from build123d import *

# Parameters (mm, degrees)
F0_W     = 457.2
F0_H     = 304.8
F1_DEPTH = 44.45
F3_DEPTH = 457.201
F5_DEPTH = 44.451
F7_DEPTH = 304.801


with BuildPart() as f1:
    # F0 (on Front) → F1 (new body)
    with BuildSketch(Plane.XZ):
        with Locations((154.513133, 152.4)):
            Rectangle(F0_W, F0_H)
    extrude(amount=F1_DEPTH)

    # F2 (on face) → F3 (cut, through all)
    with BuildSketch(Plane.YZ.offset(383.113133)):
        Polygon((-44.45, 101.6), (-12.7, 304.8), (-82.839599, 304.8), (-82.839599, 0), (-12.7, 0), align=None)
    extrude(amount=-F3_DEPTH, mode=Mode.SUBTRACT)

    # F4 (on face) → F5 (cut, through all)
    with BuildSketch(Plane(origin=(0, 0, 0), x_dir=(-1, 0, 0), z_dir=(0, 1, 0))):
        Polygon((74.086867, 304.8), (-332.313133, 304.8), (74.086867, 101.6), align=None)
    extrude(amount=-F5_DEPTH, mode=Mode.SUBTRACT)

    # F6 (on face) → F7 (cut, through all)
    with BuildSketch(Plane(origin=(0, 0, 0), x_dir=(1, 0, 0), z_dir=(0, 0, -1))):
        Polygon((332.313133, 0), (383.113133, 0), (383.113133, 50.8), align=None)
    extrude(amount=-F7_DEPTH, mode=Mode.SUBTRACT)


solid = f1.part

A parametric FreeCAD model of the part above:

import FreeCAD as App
import Part
import Sketcher
Q = App.Units.Quantity


def add_polygon(sketch, points):
    """Adds a closed chain of lines whose ends are joined by coincident constraints."""
    first, n = sketch.GeometryCount, len(points)
    for a, b in zip(points, points[1:] + points[:1]):
        sketch.addGeometry(Part.LineSegment(App.Vector(*a, 0), App.Vector(*b, 0)), False)
    for i in range(n):
        sketch.addConstraint(Sketcher.Constraint("Coincident", first + i, 2, first + (i + 1) % n, 1))

doc = App.newDocument("Part")
params = doc.addObject("Spreadsheet::Sheet", "Params")
for row, (alias, value) in enumerate([
    ("sketch1_width", "18 in"),
    ("sketch1_height", "12 in"),
    ("pad1_length", "1.75 in"),
    ("sketch2_height", "12 in"),
    ("sketch3_width", "16 in"),
    ("sketch3_height", "8 in"),
    ("sketch4_width", "2 in"),
], start=1):
    params.set(f"A{row}", alias)
    params.set(f"B{row}", "=" + value)
    params.setAlias(f"B{row}", alias)

body = doc.addObject("PartDesign::Body", "Body")

sketch1 = doc.addObject("Sketcher::SketchObject", "Sketch")
body.addObject(sketch1)
sketch1.AttachmentSupport = (doc.XZ_Plane, [""])
sketch1.MapMode = "FlatFace"
add_polygon(sketch1, [(-74, 305), (-74, 0), (383, 0), (383, 305)])
sketch1.addConstraint([
    Sketcher.Constraint("Vertical", 0),
    Sketcher.Constraint("Horizontal", 1),
    Sketcher.Constraint("Vertical", 2),
    Sketcher.Constraint("Horizontal", 3),
    Sketcher.Constraint("PointOnObject", 0, 2, -1),
    Sketcher.Constraint("DistanceX", 1, 1, 1, 2, Q("18 in")),
    Sketcher.Constraint("DistanceY", 0, 2, 0, 1, Q("12 in")),
    Sketcher.Constraint("DistanceX", 0, 2, -1, 1, Q("74.086867 mm")),
])
sketch1.setExpression("Constraints[9]", "Params.sketch1_width")
sketch1.setExpression("Constraints[10]", "Params.sketch1_height")
pad1 = doc.addObject("PartDesign::Pad", "Pad")
body.addObject(pad1)
pad1.Profile = sketch1
pad1.setExpression("Length", "Params.pad1_length")

sketch2 = doc.addObject("Sketcher::SketchObject", "Sketch001")
body.addObject(sketch2)
sketch2.AttachmentSupport = (doc.YZ_Plane, [""])
sketch2.MapMode = "FlatFace"
sketch2.AttachmentOffset = App.Placement(App.Vector(0, 0, 383.113133), App.Rotation())
add_polygon(sketch2, [(-44, 102), (-13, 305), (-83, 305), (-83, 0), (-13, 0)])
sketch2.addConstraint([
    Sketcher.Constraint("Horizontal", 1),
    Sketcher.Constraint("Vertical", 2),
    Sketcher.Constraint("Horizontal", 3),
    Sketcher.Constraint("PointOnObject", 2, 2, -1),
    Sketcher.Constraint("Vertical", 0, 2, 3, 2),
    Sketcher.Constraint("DistanceY", 2, 2, 2, 1, Q("12 in")),
    Sketcher.Constraint("DistanceY", -1, 1, 4, 2, Q("4 in")),
    Sketcher.Constraint("DistanceX", 0, 2, -1, 1, Q("0.5 in")),
    Sketcher.Constraint("DistanceX", 4, 2, -1, 1, Q("1.75 in")),
    Sketcher.Constraint("DistanceX", 1, 2, 1, 1, Q("70.139599 mm")),
])
sketch2.setExpression("Constraints[10]", "Params.sketch2_height")
pocket1 = doc.addObject("PartDesign::Pocket", "Pocket")
body.addObject(pocket1)
pocket1.Profile = sketch2
pocket1.Type = "ThroughAll"

sketch3 = doc.addObject("Sketcher::SketchObject", "Sketch002")
body.addObject(sketch3)
sketch3.AttachmentSupport = (doc.XZ_Plane, [""])
sketch3.MapMode = "FlatFace"
add_polygon(sketch3, [(-74, 305), (332, 305), (-74, 102)])
sketch3.addConstraint([
    Sketcher.Constraint("Horizontal", 0),
    Sketcher.Constraint("Vertical", 2),
    Sketcher.Constraint("DistanceX", 0, 1, 0, 2, Q("16 in")),
    Sketcher.Constraint("DistanceY", 2, 1, 2, 2, Q("8 in")),
    Sketcher.Constraint("DistanceY", -1, 1, 0, 2, Q("12 in")),
    Sketcher.Constraint("DistanceX", -1, 1, 0, 2, Q("332.313133 mm")),
])
sketch3.setExpression("Constraints[5]", "Params.sketch3_width")
sketch3.setExpression("Constraints[6]", "Params.sketch3_height")
pocket2 = doc.addObject("PartDesign::Pocket", "Pocket001")
body.addObject(pocket2)
pocket2.Profile = sketch3
pocket2.Type = "ThroughAll"
pocket2.Reversed = True

sketch4 = doc.addObject("Sketcher::SketchObject", "Sketch003")
body.addObject(sketch4)
sketch4.AttachmentSupport = (doc.XY_Plane, [""])
sketch4.MapMode = "FlatFace"
add_polygon(sketch4, [(332, 0), (383, 0), (383, -51)])
sketch4.addConstraint([
    Sketcher.Constraint("Horizontal", 0),
    Sketcher.Constraint("Vertical", 1),
    Sketcher.Constraint("PointOnObject", 0, 2, -1),
    Sketcher.Constraint("Equal", 0, 1),
    Sketcher.Constraint("DistanceX", 0, 1, 0, 2, Q("2 in")),
    Sketcher.Constraint("DistanceX", -1, 1, 0, 2, Q("383.113133 mm")),
])
sketch4.setExpression("Constraints[7]", "Params.sketch4_width")
pocket3 = doc.addObject("PartDesign::Pocket", "Pocket002")
body.addObject(pocket3)
pocket3.Profile = sketch4
pocket3.Type = "ThroughAll"
pocket3.Reversed = True

doc.recompute()
